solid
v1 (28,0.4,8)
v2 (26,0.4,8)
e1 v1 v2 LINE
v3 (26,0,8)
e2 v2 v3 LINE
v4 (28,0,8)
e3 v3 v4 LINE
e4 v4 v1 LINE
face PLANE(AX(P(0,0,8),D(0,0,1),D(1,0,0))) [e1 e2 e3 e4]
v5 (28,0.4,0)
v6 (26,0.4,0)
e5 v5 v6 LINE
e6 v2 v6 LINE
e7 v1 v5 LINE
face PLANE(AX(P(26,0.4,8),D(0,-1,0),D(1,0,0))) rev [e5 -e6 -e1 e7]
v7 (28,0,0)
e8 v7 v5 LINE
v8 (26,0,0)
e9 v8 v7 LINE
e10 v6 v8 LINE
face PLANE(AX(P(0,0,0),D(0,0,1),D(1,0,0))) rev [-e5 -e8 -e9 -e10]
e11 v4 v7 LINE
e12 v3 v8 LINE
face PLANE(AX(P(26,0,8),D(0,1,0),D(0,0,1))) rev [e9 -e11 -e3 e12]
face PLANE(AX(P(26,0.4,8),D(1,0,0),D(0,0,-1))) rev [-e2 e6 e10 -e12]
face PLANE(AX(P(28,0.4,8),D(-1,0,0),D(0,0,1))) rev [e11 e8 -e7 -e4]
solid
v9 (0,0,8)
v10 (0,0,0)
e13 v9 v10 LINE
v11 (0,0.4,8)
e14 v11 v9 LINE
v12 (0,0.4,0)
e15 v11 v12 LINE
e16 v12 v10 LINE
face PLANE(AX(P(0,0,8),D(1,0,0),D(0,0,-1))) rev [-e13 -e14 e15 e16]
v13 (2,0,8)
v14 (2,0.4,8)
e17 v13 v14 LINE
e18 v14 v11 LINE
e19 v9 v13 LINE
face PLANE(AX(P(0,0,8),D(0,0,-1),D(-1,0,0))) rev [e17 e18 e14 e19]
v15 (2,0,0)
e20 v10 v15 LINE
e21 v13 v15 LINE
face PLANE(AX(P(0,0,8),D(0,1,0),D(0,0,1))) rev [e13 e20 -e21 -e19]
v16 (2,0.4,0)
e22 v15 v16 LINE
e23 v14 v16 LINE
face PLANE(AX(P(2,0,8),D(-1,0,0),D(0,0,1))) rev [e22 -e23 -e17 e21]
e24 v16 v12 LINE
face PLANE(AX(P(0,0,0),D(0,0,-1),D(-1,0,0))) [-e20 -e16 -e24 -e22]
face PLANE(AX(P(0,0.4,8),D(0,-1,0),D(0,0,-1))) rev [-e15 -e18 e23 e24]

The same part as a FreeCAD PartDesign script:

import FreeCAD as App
import Part
import Sketcher

V = App.Vector


def add_polygon(sketch, points):
    """Adds a closed chain of lines whose ends are joined by coincident constraints."""
    first, n = sketch.GeometryCount, len(points)
    for a, b in zip(points, points[1:] + points[:1]):
        sketch.addGeometry(Part.LineSegment(App.Vector(*a, 0), App.Vector(*b, 0)), False)
    for i in range(n):
        sketch.addConstraint(Sketcher.Constraint("Coincident", first + i, 2, first + (i + 1) % n, 1))

doc = App.newDocument("Part")
params = doc.addObject("Spreadsheet::Sheet", "Params")
for row, (alias, value) in enumerate([
    ("sketch1_width", "2 mm"),
    ("sketch1_height", "0.4 mm"),
    ("pad1_length", "8 mm"),
    ("sketch2_width", "2 mm"),
    ("sketch2_height", "0.4 mm"),
    ("pad2_length", "8 mm"),
], start=1):
    params.set(f"A{row}", alias)
    params.set(f"B{row}", "=" + value)
    params.setAlias(f"B{row}", alias)

body = doc.addObject("PartDesign::Body", "Body")

# Sketch on XY plane
sketch1 = body.newObject("Sketcher::SketchObject", "Sketch")
sketch1.AttachmentSupport = (doc.getObject("XY_Plane"), [""])
sketch1.MapMode = "FlatFace"
add_polygon(sketch1, [(0, 0.4), (0, 0), (2, 0), (2, 0.4)])  # lines 0-3
sketch1.addConstraint([
    Sketcher.Constraint("Vertical", 0),
    Sketcher.Constraint("Horizontal", 1),
    Sketcher.Constraint("Vertical", 2),
    Sketcher.Constraint("Horizontal", 3),
    Sketcher.Constraint("Coincident", 0, 2, -1, 1),
    Sketcher.Constraint("DistanceX", 1, 1, 1, 2, 2.0),
    Sketcher.Constraint("DistanceY", 0, 2, 0, 1, 0.4),
])
sketch1.setExpression("Constraints[9]", "Params.sketch1_width")
sketch1.setExpression("Constraints[10]", "Params.sketch1_height")
pad1 = body.newObject("PartDesign::Pad", "Pad")
pad1.Profile = sketch1
pad1.setExpression("Length", "Params.pad1_length")
body2 = doc.addObject("PartDesign::Body", "Body001")

# Sketch on XY plane
sketch2 = body2.newObject("Sketcher::SketchObject", "Sketch001")
sketch2.AttachmentSupport = (doc.getObject("XY_Plane001"), [""])
sketch2.MapMode = "FlatFace"
add_polygon(sketch2, [(26, 0.4), (26, 0), (28, 0), (28, 0.4)])  # lines 0-3
sketch2.addConstraint([
    Sketcher.Constraint("Vertical", 0),
    Sketcher.Constraint("Horizontal", 1),
    Sketcher.Constraint("Vertical", 2),
    Sketcher.Constraint("Horizontal", 3),
    Sketcher.Constraint("PointOnObject", 0, 2, -1),
    Sketcher.Constraint("DistanceX", 1, 1, 1, 2, 2.0),
    Sketcher.Constraint("DistanceY", 0, 2, 0, 1, 0.4),
    Sketcher.Constraint("DistanceX", -1, 1, 0, 2, 26.0),
])
sketch2.setExpression("Constraints[9]", "Params.sketch2_width")
sketch2.setExpression("Constraints[10]", "Params.sketch2_height")
pad2 = body2.newObject("PartDesign::Pad", "Pad001")
pad2.Profile = sketch2
pad2.setExpression("Length", "Params.pad2_length")

doc.recompute()
